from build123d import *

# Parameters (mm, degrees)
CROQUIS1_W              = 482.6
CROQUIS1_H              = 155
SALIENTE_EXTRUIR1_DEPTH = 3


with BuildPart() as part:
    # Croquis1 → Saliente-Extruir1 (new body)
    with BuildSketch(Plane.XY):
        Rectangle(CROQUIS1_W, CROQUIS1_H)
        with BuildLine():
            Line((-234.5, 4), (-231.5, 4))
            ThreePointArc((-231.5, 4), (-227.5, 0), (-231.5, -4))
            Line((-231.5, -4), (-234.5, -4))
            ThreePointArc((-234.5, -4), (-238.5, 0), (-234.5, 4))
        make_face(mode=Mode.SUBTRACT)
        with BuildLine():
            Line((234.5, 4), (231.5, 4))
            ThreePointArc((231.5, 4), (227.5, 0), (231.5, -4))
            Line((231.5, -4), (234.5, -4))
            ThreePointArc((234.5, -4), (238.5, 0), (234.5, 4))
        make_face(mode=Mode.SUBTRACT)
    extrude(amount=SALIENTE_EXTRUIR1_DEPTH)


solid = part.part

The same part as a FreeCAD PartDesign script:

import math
import FreeCAD as App
import Part
import Sketcher
Q = App.Units.Quantity

doc = App.newDocument("Part")
params = doc.addObject("Spreadsheet::Sheet", "Params")
for row, (alias, value) in enumerate([
    ("sketch1_radius", "4 mm"),
    ("sketch1_width", "3 mm"),
    ("sketch1_height", "155 mm"),
    ("sketch1_width2", "482.6 mm"),
    ("pad1_length", "3 mm"),
], start=1):
    params.set(f"A{row}", alias)
    params.set(f"B{row}", "=" + value)
    params.setAlias(f"B{row}", alias)

body = doc.addObject("PartDesign::Body", "Body")

# Sketch on XY plane
sketch1 = body.newObject("Sketcher::SketchObject", "Sketch")
sketch1.AttachmentSupport = (doc.getObject("XY_Plane"), [""])
sketch1.MapMode = "FlatFace"
sketch1.addGeometry([
    Part.LineSegment(App.Vector(-241.3, 77.5, 0), App.Vector(-241.3, -77.5, 0)),  # 0
    Part.LineSegment(App.Vector(-241.3, -77.5, 0), App.Vector(241.3, -77.5, 0)),  # 1
    Part.LineSegment(App.Vector(241.3, -77.5, 0), App.Vector(241.3, 77.5, 0)),  # 2
    Part.LineSegment(App.Vector(241.3, 77.5, 0), App.Vector(-241.3, 77.5, 0)),  # 3
    Part.ArcOfCircle(Part.Circle(App.Vector(-234.5, 0, 0), App.Vector(0, 0, 1), 4), math.radians(90), math.radians(270)),  # 4
    Part.LineSegment(App.Vector(-234.5, 4, 0), App.Vector(-231.5, 4, 0)),  # 5
    Part.ArcOfCircle(Part.Circle(App.Vector(-231.5, 0, 0), App.Vector(0, 0, 1), 4), math.radians(-90), math.radians(90)),  # 6
    Part.LineSegment(App.Vector(-231.5, -4, 0), App.Vector(-234.5, -4, 0)),  # 7
    Part.LineSegment(App.Vector(231.5, 4, 0), App.Vector(234.5, 4, 0)),  # 8
    Part.ArcOfCircle(Part.Circle(App.Vector(234.5, 0, 0), App.Vector(0, 0, 1), 4), math.radians(-90), math.radians(90)),  # 9
    Part.LineSegment(App.Vector(234.5, -4, 0), App.Vector(231.5, -4, 0)),  # 10
    Part.ArcOfCircle(Part.Circle(App.Vector(231.5, 0, 0), App.Vector(0, 0, 1), 4), math.radians(90), math.radians(270)),  # 11
], False)
sketch1.addConstraint([
    Sketcher.Constraint("Coincident", 0, 2, 1, 1),
    Sketcher.Constraint("Coincident", 1, 2, 2, 1),
    Sketcher.Constraint("Coincident", 2, 2, 3, 1),
    Sketcher.Constraint("Coincident", 3, 2, 0, 1),
    Sketcher.Constraint("Tangent", 4, 1, 5, 1),
    Sketcher.Constraint("Tangent", 5, 2, 6, 2),
    Sketcher.Constraint("Tangent", 6, 1, 7, 1),
    Sketcher.Constraint("Tangent", 7, 2, 4, 2),
    Sketcher.Constraint("Tangent", 8, 2, 9, 2),
    Sketcher.Constraint("Tangent", 9, 1, 10, 1),
    Sketcher.Constraint("Tangent", 10, 2, 11, 2),
    Sketcher.Constraint("Tangent", 11, 1, 8, 1),
    Sketcher.Constraint("Vertical", 0),
    Sketcher.Constraint("Horizontal", 1),
    Sketcher.Constraint("Vertical", 2),
    Sketcher.Constraint("Horizontal", 3),
    Sketcher.Constraint("Horizontal", 5),
    Sketcher.Constraint("Horizontal", 7),
    Sketcher.Constraint("Horizontal", 8),
    Sketcher.Constraint("Horizontal", 10),
    Sketcher.Constraint("Equal", 6, 9),
    Sketcher.Constraint("Symmetric", 4, 3, 9, 3, -1, 1),
    Sketcher.Constraint("Symmetric", 0, 2, 2, 2, -1, 1),
    Sketcher.Constraint("Symmetric", 6, 3, 11, 3, -2),
    Sketcher.Constraint("Radius", 4, Q("4 mm")),
    Sketcher.Constraint("DistanceX", 5, 1, 5, 2, Q("3 mm")),
    Sketcher.Constraint("DistanceY", 0, 2, 0, 1, Q("155 mm")),
    Sketcher.Constraint("DistanceX", 1, 1, 1, 2, Q("482.6 mm")),
    Sketcher.Constraint("DistanceX", 6, 3, 9, 3, Q("466 mm")),
])
sketch1.setExpression("Constraints[24]", "Params.sketch1_radius")
sketch1.setExpression("Constraints[25]", "Params.sketch1_width")
sketch1.setExpression("Constraints[26]", "Params.sketch1_height")
sketch1.setExpression("Constraints[27]", "Params.sketch1_width2")
pad1 = body.newObject("PartDesign::Pad", "Pad")
pad1.Profile = sketch1
pad1.setExpression("Length", "Params.pad1_length")

doc.recompute()
